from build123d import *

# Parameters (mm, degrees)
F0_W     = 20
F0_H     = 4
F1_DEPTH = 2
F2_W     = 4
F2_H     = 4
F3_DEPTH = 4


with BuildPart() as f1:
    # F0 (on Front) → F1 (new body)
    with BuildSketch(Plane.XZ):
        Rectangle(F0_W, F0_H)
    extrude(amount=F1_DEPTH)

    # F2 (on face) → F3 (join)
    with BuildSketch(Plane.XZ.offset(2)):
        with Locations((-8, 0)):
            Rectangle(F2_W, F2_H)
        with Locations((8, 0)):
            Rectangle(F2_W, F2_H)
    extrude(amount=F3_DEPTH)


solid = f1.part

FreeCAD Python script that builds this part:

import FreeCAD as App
import Part
import Sketcher

V = App.Vector
Q = App.Units.Quantity

doc = App.newDocument("Part")
body = doc.addObject("PartDesign::Body", "Body")

sketch1 = doc.addObject("Sketcher::SketchObject", "Sketch")
body.addObject(sketch1)
sketch1.AttachmentSupport = (doc.XZ_Plane, [""])
sketch1.MapMode = "FlatFace"
sketch1.addGeometry([
    Part.LineSegment(V(-10, 2, 0), V(-10, -2, 0)),
    Part.LineSegment(V(-10, -2, 0), V(10, -2, 0)),
    Part.LineSegment(V(10, -2, 0), V(10, 2, 0)),
    Part.LineSegment(V(10, 2, 0), V(-10, 2, 0)),
], False)
sketch1.addConstraint([
    Sketcher.Constraint("Coincident", 0, 2, 1, 1),
    Sketcher.Constraint("Coincident", 1, 2, 2, 1),
    Sketcher.Constraint("Coincident", 2, 2, 3, 1),
    Sketcher.Constraint("Coincident", 3, 2, 0, 1),
    Sketcher.Constraint("Vertical", 0),
    Sketcher.Constraint("Horizontal", 1),
    Sketcher.Constraint("Vertical", 2),
    Sketcher.Constraint("Horizontal", 3),
    Sketcher.Constraint("Symmetric", 0, 2, 2, 2, -1, 1),
    Sketcher.Constraint("DistanceX", 1, 1, 1, 2, Q("20 mm")),
    Sketcher.Constraint("DistanceY", 0, 2, 0, 1, Q("4 mm")),
])
pad1 = doc.addObject("PartDesign::Pad", "Pad")
body.addObject(pad1)
pad1.Profile = sketch1
pad1.Length = 2

sketch2 = doc.addObject("Sketcher::SketchObject", "Sketch001")
body.addObject(sketch2)
sketch2.AttachmentSupport = (doc.XZ_Plane, [""])
sketch2.MapMode = "FlatFace"
sketch2.AttachmentOffset = App.Placement(V(0, 0, 2), App.Rotation())
sketch2.addGeometry([
    Part.LineSegment(V(-10, 2, 0), V(-10, -2, 0)),
    Part.LineSegment(V(-10, -2, 0), V(-6, -2, 0)),
    Part.LineSegment(V(-6, -2, 0), V(-6, 2, 0)),
    Part.LineSegment(V(-6, 2, 0), V(-10, 2, 0)),
    Part.LineSegment(V(6, 2, 0), V(6, -2, 0)),
    Part.LineSegment(V(6, -2, 0), V(10, -2, 0)),
    Part.LineSegment(V(10, -2, 0), V(10, 2, 0)),
    Part.LineSegment(V(10, 2, 0), V(6, 2, 0)),
], False)
sketch2.addConstraint([
    Sketcher.Constraint("Coincident", 0, 2, 1, 1),
    Sketcher.Constraint("Coincident", 1, 2, 2, 1),
    Sketcher.Constraint("Coincident", 2, 2, 3, 1),
    Sketcher.Constraint("Coincident", 3, 2, 0, 1),
    Sketcher.Constraint("Coincident", 4, 2, 5, 1),
    Sketcher.Constraint("Coincident", 5, 2, 6, 1),
    Sketcher.Constraint("Coincident", 6, 2, 7, 1),
    Sketcher.Constraint("Coincident", 7, 2, 4, 1),
    Sketcher.Constraint("Vertical", 0),
    Sketcher.Constraint("Horizontal", 1),
    Sketcher.Constraint("Vertical", 2),
    Sketcher.Constraint("Horizontal", 3),
    Sketcher.Constraint("Vertical", 4),
    Sketcher.Constraint("Horizontal", 5),
    Sketcher.Constraint("Vertical", 6),
    Sketcher.Constraint("Horizontal", 7),
    Sketcher.Constraint("Symmetric", 2, 2, 4, 2, -1, 1),
    Sketcher.Constraint("Symmetric", 0, 2, 6, 2, -1, 1),
    Sketcher.Constraint("Horizontal", 1, 2, 4, 2),
    Sketcher.Constraint("Equal", 7, 0),
    Sketcher.Constraint("DistanceX", 1, 1, 1, 2, Q("4 mm")),
    Sketcher.Constraint("DistanceX", 0, 2, -1, 1, Q("10 mm")),
])
pad2 = doc.addObject("PartDesign::Pad", "Pad001")
body.addObject(pad2)
pad2.Profile = sketch2
pad2.Length = 4

doc.recompute()
